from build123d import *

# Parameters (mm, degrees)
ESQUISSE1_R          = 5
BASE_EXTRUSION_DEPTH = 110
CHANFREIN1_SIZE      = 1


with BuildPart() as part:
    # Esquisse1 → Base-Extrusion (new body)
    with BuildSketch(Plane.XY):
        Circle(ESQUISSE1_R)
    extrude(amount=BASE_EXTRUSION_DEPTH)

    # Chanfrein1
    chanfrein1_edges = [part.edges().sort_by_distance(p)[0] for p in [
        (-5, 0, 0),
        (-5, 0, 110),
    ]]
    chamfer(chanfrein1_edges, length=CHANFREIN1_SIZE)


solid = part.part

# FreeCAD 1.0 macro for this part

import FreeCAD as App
import Part
import Sketcher

V = App.Vector
Q = App.Units.Quantity


def edges_at(feature, points):
    """Names of the edges that pass closest to the given points."""
    edges = feature.Shape.Edges
    near = lambda p: min(range(len(edges)), key=lambda i: edges[i].distToShape(Part.Vertex(*p))[0])
    return sorted({f"Edge{near(p) + 1}" for p in points})

doc = App.newDocument("Part")
body = doc.addObject("PartDesign::Body", "Body")

# Sketch on XY plane
sketch1 = body.newObject("Sketcher::SketchObject", "Sketch")
sketch1.AttachmentSupport = (doc.getObject("XY_Plane"), [""])
sketch1.MapMode = "FlatFace"
sketch1.addGeometry(Part.Circle(V(0, 0, 0), V(0, 0, 1), 5), False)
sketch1.addConstraint([
    Sketcher.Constraint("Coincident", 0, 3, -1, 1),
    Sketcher.Constraint("Diameter", 0, Q("10 mm")),
])
pad1 = body.newObject("PartDesign::Pad", "Pad")
pad1.Profile = sketch1
pad1.Length = 110
doc.recompute()

chamfer = body.newObject("PartDesign::Chamfer", "Chamfer")
chamfer.Base = (pad1, edges_at(pad1, [(-5, 0, 0), (-5, 0, 110)]))
chamfer.Size = 1

doc.recompute()
